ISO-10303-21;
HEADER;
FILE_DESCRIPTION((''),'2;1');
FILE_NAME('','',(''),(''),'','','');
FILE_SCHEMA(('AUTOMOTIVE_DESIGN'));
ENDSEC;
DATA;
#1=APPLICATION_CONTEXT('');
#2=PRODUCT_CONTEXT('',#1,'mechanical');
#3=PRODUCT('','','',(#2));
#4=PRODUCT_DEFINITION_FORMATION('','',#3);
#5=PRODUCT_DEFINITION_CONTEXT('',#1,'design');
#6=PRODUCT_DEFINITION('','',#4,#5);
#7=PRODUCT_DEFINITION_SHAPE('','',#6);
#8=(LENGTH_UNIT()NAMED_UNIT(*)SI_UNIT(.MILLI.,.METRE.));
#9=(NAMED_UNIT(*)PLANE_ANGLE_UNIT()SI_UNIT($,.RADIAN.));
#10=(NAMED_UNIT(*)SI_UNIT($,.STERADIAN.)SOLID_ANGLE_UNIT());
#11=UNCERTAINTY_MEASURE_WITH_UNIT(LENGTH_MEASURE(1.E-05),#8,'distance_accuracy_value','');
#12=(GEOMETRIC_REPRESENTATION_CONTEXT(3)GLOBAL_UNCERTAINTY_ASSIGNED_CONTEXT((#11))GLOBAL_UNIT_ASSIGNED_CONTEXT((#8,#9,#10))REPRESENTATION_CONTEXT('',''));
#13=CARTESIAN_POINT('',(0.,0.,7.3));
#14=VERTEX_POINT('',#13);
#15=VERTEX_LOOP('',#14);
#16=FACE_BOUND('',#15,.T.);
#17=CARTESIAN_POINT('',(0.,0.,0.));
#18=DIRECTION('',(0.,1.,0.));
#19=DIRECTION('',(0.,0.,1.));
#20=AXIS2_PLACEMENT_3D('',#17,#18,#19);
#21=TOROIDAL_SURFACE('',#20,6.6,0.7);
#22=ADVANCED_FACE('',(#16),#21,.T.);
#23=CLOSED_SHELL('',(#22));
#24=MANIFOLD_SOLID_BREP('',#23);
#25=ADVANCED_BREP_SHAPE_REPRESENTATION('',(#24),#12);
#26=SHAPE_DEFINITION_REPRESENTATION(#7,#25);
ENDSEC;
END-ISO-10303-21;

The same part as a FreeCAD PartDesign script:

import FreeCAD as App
import Part
import Sketcher

V = App.Vector
Q = App.Units.Quantity

doc = App.newDocument("Part")
body = doc.addObject("PartDesign::Body", "Body")

# Sketch on XY plane
sketch1 = body.newObject("Sketcher::SketchObject", "Sketch")
sketch1.AttachmentSupport = (doc.getObject("XY_Plane"), [""])
sketch1.MapMode = "FlatFace"
sketch1.addGeometry(Part.Circle(V(-6.6, 0, 0), V(0, 0, 1), 0.7), False)
sketch1.addConstraint([
    Sketcher.Constraint("PointOnObject", 0, 3, -1),
    Sketcher.Constraint("Diameter", 0, Q("1.4 mm")),
    Sketcher.Constraint("DistanceX", 0, 3, -1, 1, Q("6.6 mm")),
])
revolution = body.newObject("PartDesign::Revolution", "Revolution")
revolution.Profile = sketch1
revolution.ReferenceAxis = (sketch1, ["V_Axis"])
revolution.Angle = 360

doc.recompute()
